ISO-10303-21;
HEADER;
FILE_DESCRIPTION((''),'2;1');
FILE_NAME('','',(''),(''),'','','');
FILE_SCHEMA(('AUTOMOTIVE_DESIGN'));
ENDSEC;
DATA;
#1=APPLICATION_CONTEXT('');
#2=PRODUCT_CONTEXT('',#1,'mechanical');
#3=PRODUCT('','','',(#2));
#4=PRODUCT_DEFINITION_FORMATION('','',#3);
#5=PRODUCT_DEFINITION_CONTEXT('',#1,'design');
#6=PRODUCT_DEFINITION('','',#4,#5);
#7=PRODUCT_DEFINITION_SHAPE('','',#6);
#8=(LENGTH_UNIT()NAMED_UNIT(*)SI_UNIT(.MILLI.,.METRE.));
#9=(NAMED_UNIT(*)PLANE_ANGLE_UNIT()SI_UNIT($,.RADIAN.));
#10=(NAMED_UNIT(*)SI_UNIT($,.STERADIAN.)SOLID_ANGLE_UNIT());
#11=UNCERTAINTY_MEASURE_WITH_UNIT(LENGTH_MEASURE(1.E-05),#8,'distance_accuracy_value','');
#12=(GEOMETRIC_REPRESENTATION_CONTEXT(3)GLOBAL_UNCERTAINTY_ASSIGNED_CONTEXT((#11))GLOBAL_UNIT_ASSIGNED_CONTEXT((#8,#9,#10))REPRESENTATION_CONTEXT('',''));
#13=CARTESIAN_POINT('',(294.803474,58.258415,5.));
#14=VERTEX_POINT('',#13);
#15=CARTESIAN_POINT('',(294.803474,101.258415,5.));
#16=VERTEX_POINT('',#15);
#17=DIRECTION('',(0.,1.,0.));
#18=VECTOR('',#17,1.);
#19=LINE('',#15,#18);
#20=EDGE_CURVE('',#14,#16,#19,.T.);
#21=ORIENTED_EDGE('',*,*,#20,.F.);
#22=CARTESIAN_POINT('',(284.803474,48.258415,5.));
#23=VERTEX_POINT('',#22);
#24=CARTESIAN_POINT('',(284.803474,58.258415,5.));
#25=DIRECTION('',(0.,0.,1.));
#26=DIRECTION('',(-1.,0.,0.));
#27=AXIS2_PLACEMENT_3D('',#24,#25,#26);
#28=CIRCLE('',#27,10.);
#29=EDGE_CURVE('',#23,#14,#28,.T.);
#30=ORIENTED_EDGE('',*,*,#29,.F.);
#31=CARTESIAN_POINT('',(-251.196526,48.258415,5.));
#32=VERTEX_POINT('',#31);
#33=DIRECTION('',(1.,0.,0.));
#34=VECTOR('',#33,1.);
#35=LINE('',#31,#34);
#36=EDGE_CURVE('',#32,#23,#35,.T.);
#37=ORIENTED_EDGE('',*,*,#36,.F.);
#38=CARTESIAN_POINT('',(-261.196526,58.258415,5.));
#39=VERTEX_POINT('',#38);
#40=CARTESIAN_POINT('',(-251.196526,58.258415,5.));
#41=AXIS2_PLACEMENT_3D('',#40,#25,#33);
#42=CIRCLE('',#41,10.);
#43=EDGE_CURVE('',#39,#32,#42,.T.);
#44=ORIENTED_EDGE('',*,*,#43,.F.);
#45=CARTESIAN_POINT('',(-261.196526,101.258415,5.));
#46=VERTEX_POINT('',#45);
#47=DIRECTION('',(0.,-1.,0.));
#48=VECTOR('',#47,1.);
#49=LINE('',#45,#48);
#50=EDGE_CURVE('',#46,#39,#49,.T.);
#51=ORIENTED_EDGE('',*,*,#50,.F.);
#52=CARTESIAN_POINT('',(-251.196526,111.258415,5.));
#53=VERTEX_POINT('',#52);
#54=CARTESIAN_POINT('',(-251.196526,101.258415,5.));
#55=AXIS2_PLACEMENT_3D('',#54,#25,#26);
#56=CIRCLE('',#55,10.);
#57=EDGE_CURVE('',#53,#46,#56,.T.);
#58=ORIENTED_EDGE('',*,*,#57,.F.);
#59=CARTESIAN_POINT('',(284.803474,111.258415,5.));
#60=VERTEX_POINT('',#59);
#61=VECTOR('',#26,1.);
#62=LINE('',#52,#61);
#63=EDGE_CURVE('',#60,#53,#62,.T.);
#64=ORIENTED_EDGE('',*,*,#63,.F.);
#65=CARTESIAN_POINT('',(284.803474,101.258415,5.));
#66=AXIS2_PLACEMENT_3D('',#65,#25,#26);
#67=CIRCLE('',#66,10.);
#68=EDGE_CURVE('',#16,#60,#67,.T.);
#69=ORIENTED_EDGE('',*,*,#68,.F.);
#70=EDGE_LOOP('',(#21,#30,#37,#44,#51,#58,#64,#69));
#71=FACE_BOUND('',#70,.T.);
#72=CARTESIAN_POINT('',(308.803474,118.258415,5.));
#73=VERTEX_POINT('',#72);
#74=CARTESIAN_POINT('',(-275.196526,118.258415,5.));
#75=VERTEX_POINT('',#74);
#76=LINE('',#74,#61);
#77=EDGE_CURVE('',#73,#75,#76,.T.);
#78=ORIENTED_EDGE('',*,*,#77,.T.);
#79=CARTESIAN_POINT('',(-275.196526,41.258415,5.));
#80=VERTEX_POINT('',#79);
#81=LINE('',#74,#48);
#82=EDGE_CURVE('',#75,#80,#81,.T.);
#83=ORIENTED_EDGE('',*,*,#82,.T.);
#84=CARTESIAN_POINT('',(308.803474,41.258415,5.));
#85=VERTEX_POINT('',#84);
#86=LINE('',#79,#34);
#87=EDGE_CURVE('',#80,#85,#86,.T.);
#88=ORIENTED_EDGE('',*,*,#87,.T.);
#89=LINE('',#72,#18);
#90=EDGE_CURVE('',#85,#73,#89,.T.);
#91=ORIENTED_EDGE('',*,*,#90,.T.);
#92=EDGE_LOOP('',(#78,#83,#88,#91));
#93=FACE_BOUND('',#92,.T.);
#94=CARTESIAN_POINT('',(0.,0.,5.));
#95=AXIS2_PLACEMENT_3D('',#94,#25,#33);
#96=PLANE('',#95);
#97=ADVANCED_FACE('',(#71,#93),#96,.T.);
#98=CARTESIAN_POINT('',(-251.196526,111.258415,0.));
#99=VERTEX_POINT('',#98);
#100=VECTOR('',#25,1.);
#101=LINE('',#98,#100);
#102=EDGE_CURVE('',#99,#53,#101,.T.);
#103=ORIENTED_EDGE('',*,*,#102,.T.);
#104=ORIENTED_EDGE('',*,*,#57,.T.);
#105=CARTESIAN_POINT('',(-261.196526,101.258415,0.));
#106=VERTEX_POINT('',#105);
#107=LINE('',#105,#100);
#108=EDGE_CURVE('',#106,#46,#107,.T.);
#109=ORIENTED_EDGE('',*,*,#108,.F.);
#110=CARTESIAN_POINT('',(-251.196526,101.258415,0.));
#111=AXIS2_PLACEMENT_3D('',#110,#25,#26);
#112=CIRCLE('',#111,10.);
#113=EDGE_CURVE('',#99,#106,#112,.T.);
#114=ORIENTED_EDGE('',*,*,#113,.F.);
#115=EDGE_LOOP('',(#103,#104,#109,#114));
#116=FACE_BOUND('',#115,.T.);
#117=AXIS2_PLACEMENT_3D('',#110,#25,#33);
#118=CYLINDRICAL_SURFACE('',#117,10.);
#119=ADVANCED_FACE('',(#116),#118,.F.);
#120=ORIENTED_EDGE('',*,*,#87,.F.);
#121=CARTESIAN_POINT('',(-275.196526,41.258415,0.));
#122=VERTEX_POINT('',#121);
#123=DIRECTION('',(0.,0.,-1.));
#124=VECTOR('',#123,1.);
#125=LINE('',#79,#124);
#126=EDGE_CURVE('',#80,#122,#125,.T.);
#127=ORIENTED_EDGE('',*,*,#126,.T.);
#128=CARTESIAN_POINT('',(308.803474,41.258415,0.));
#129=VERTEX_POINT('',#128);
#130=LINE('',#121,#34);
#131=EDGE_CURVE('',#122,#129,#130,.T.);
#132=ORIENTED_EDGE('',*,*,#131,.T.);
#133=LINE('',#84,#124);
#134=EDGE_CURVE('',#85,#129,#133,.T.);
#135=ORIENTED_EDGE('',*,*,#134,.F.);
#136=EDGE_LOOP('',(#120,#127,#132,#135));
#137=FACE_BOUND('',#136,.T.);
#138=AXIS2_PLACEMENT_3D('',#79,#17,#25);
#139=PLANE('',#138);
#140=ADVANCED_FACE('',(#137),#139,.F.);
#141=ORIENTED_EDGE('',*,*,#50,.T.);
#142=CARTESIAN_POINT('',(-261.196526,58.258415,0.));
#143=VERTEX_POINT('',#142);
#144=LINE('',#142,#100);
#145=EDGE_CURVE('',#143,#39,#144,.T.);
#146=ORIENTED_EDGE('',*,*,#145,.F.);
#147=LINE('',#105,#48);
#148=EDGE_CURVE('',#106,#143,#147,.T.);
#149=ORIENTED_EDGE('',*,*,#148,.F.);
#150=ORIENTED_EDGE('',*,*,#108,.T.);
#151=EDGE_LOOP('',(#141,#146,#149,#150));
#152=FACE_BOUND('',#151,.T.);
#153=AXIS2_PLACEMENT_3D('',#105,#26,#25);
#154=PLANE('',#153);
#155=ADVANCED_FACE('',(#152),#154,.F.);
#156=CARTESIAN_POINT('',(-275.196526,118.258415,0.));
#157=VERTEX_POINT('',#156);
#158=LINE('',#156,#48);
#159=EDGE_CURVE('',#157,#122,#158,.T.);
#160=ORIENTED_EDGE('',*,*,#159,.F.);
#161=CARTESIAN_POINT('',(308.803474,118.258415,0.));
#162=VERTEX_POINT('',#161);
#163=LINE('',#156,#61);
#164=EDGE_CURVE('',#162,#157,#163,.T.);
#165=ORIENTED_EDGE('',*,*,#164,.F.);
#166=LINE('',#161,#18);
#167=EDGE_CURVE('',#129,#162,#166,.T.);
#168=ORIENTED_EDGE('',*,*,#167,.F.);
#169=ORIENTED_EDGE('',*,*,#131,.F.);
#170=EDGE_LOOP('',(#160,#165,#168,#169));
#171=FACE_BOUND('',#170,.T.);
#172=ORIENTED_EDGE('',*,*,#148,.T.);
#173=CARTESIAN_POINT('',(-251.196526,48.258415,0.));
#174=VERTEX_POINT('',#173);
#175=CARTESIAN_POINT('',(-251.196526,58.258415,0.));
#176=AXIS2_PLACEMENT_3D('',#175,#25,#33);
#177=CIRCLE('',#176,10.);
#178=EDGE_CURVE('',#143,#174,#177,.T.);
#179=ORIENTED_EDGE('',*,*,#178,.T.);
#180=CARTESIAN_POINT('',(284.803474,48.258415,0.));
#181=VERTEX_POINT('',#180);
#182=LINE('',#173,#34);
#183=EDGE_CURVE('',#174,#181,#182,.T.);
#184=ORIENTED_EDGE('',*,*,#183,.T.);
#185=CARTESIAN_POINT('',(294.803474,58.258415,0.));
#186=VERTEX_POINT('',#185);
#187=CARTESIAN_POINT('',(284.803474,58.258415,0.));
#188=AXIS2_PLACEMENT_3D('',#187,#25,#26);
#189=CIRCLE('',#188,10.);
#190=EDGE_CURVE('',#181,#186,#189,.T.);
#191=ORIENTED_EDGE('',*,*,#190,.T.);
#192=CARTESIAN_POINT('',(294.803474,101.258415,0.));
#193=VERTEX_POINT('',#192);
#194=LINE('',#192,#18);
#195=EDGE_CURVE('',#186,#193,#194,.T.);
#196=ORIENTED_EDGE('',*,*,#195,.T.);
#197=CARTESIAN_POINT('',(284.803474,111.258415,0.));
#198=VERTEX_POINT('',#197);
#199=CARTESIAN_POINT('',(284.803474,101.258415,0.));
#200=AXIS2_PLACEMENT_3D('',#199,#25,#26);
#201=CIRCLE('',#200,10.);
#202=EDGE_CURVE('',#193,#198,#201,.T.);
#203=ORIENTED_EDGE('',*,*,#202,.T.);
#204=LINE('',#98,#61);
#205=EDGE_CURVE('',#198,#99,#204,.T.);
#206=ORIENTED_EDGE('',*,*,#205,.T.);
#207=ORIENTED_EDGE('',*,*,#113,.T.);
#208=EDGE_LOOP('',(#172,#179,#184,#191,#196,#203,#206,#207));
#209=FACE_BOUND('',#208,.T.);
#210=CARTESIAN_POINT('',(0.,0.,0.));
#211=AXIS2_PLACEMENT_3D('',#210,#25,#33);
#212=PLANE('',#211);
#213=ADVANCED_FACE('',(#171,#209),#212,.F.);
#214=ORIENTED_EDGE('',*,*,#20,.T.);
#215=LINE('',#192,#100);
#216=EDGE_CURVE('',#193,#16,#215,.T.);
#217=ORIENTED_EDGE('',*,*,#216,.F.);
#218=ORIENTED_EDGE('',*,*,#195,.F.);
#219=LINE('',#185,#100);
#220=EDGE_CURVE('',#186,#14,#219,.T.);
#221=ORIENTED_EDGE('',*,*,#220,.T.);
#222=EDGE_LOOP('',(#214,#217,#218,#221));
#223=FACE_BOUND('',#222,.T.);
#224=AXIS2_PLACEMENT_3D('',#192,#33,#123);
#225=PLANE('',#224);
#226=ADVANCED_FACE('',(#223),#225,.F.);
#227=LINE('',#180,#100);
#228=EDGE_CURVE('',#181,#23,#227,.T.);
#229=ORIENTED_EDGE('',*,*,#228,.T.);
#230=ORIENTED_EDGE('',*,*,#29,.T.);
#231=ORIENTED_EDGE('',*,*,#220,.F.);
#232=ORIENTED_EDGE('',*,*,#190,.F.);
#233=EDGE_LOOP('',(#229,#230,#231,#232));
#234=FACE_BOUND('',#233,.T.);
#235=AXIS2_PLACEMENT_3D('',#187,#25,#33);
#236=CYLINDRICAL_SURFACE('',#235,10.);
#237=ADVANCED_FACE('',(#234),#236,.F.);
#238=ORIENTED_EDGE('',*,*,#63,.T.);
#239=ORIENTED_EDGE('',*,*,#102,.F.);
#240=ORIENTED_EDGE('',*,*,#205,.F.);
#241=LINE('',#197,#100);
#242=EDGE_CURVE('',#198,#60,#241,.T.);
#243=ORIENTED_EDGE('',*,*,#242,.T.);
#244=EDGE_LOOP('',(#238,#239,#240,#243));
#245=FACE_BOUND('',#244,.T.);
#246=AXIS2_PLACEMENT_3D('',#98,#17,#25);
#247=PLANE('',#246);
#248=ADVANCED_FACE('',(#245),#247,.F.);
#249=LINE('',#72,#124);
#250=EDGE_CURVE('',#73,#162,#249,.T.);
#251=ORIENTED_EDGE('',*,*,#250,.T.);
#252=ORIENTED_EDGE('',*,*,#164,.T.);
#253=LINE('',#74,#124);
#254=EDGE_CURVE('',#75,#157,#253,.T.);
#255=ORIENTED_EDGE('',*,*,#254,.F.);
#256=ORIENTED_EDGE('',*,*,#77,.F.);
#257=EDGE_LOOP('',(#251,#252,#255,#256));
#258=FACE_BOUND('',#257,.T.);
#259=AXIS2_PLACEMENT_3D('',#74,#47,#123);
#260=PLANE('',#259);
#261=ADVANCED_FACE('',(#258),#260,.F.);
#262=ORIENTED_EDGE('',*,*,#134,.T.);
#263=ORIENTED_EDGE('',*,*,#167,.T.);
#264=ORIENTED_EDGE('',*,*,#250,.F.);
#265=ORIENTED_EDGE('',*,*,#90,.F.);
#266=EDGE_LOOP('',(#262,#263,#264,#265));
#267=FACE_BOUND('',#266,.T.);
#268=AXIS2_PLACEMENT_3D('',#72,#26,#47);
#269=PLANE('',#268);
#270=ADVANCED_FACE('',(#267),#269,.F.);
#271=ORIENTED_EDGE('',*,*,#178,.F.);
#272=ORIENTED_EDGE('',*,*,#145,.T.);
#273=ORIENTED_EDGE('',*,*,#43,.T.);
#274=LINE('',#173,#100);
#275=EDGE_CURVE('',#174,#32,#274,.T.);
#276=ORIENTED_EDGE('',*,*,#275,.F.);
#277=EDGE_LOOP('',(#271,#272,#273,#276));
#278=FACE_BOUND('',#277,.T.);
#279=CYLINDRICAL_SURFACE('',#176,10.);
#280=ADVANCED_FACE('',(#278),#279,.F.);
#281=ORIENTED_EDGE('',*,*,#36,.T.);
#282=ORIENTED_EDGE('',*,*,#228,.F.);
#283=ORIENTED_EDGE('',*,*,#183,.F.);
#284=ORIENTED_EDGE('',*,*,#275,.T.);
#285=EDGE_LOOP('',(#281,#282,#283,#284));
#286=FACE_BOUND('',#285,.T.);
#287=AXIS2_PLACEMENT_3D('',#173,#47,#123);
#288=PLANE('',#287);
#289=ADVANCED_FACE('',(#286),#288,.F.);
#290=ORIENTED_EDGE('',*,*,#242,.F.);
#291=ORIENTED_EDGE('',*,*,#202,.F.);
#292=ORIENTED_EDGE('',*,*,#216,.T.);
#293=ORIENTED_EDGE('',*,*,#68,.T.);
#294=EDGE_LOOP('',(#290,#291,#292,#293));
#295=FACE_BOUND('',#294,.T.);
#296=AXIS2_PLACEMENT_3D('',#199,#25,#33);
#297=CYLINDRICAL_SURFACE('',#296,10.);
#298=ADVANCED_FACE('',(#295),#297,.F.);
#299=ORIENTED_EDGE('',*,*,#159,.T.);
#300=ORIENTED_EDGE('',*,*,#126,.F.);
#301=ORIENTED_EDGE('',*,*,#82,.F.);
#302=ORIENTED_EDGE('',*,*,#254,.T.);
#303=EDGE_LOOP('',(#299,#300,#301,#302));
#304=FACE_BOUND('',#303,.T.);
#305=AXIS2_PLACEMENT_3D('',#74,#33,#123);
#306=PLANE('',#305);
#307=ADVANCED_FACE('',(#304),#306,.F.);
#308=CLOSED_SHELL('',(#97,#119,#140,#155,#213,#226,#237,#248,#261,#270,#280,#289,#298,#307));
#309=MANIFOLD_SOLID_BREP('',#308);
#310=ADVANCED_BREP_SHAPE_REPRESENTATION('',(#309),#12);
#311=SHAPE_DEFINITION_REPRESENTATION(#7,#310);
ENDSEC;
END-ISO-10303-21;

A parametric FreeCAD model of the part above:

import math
import FreeCAD as App
import Part
import Sketcher
Q = App.Units.Quantity

doc = App.newDocument("Part")
params = doc.addObject("Spreadsheet::Sheet", "Params")
for row, (alias, value) in enumerate([
    ("sketch1_width", "584 mm"),
    ("sketch1_height", "77 mm"),
    ("pad1_length", "5 mm"),
    ("sketch2_radius", "10 mm"),
    ("sketch2_width", "536 mm"),
    ("sketch2_height", "43 mm"),
    ("pocket1_length", "5 mm"),
], start=1):
    params.set(f"A{row}", alias)
    params.set(f"B{row}", "=" + value)
    params.setAlias(f"B{row}", alias)

body = doc.addObject("PartDesign::Body", "Body")

sketch1 = body.newObject("Sketcher::SketchObject", "Sketch")
sketch1.AttachmentSupport = (doc.getObject("XY_Plane"), [""])
sketch1.MapMode = "FlatFace"
sketch1.addGeometry(Part.LineSegment(App.Vector(-275.196526, 118.258415, 0), App.Vector(-275.196526, 41.258415, 0)), False)
sketch1.addGeometry(Part.LineSegment(App.Vector(-275.196526, 41.258415, 0), App.Vector(308.803474, 41.258415, 0)), False)
sketch1.addGeometry(Part.LineSegment(App.Vector(308.803474, 41.258415, 0), App.Vector(308.803474, 118.258415, 0)), False)
sketch1.addGeometry(Part.LineSegment(App.Vector(308.803474, 118.258415, 0), App.Vector(-275.196526, 118.258415, 0)), False)
sketch1.addConstraint(Sketcher.Constraint("Coincident", 0, 2, 1, 1))
sketch1.addConstraint(Sketcher.Constraint("Coincident", 1, 2, 2, 1))
sketch1.addConstraint(Sketcher.Constraint("Coincident", 2, 2, 3, 1))
sketch1.addConstraint(Sketcher.Constraint("Coincident", 3, 2, 0, 1))
sketch1.addConstraint(Sketcher.Constraint("Vertical", 0))
sketch1.addConstraint(Sketcher.Constraint("Horizontal", 1))
sketch1.addConstraint(Sketcher.Constraint("Vertical", 2))
sketch1.addConstraint(Sketcher.Constraint("Horizontal", 3))
sketch1.addConstraint(Sketcher.Constraint("DistanceX", 1, 1, 1, 2, Q("584 mm")))
sketch1.addConstraint(Sketcher.Constraint("DistanceY", 0, 2, 0, 1, Q("77 mm")))
sketch1.addConstraint(Sketcher.Constraint("DistanceX", 0, 2, -1, 1, Q("275.196526 mm")))
sketch1.addConstraint(Sketcher.Constraint("DistanceY", -1, 1, 0, 2, Q("41.258415 mm")))
sketch1.setExpression("Constraints[8]", "Params.sketch1_width")
sketch1.setExpression("Constraints[9]", "Params.sketch1_height")
pad1 = body.newObject("PartDesign::Pad", "Pad")
pad1.Profile = sketch1
pad1.setExpression("Length", "Params.pad1_length")

sketch2 = body.newObject("Sketcher::SketchObject", "Sketch001")
sketch2.AttachmentSupport = (doc.getObject("XY_Plane"), [""])
sketch2.MapMode = "FlatFace"
sketch2.AttachmentOffset = App.Placement(App.Vector(0, 0, 5), App.Rotation())
sketch2.addGeometry(Part.LineSegment(App.Vector(284.803474, 111.258415, 0), App.Vector(-251.196526, 111.258415, 0)), False)
sketch2.addGeometry(Part.ArcOfCircle(Part.Circle(App.Vector(-251.196526, 101.258415, 0), App.Vector(0, 0, 1), 10), math.radians(90), math.radians(180)), False)
sketch2.addGeometry(Part.LineSegment(App.Vector(-261.196526, 101.258415, 0), App.Vector(-261.196526, 58.258415, 0)), False)
sketch2.addGeometry(Part.ArcOfCircle(Part.Circle(App.Vector(-251.196526, 58.258415, 0), App.Vector(0, 0, 1), 10), math.radians(180), math.radians(270)), False)
sketch2.addGeometry(Part.LineSegment(App.Vector(-251.196526, 48.258415, 0), App.Vector(284.803474, 48.258415, 0)), False)
sketch2.addGeometry(Part.ArcOfCircle(Part.Circle(App.Vector(284.803474, 58.258415, 0), App.Vector(0, 0, 1), 10), math.radians(-90), math.radians(0)), False)
sketch2.addGeometry(Part.LineSegment(App.Vector(294.803474, 58.258415, 0), App.Vector(294.803474, 101.258415, 0)), False)
sketch2.addGeometry(Part.ArcOfCircle(Part.Circle(App.Vector(284.803474, 101.258415, 0), App.Vector(0, 0, 1), 10), math.radians(0), math.radians(90)), False)
sketch2.addConstraint(Sketcher.Constraint("Tangent", 0, 2, 1, 1))
sketch2.addConstraint(Sketcher.Constraint("Tangent", 1, 2, 2, 1))
sketch2.addConstraint(Sketcher.Constraint("Tangent", 2, 2, 3, 1))
sketch2.addConstraint(Sketcher.Constraint("Tangent", 3, 2, 4, 1))
sketch2.addConstraint(Sketcher.Constraint("Tangent", 4, 2, 5, 1))
sketch2.addConstraint(Sketcher.Constraint("Tangent", 5, 2, 6, 1))
sketch2.addConstraint(Sketcher.Constraint("Tangent", 6, 2, 7, 1))
sketch2.addConstraint(Sketcher.Constraint("Tangent", 7, 2, 0, 1))
sketch2.addConstraint(Sketcher.Constraint("Horizontal", 0))
sketch2.addConstraint(Sketcher.Constraint("Vertical", 2))
sketch2.addConstraint(Sketcher.Constraint("Horizontal", 4))
sketch2.addConstraint(Sketcher.Constraint("Vertical", 6))
sketch2.addConstraint(Sketcher.Constraint("Equal", 1, 3))
sketch2.addConstraint(Sketcher.Constraint("Equal", 3, 5))
sketch2.addConstraint(Sketcher.Constraint("Equal", 5, 7))
sketch2.addConstraint(Sketcher.Constraint("Radius", 1, Q("10 mm")))
sketch2.addConstraint(Sketcher.Constraint("DistanceX", 0, 2, 0, 1, Q("536 mm")))
sketch2.addConstraint(Sketcher.Constraint("DistanceY", 2, 2, 2, 1, Q("43 mm")))
sketch2.addConstraint(Sketcher.Constraint("DistanceX", 1, 3, -1, 1, Q("251.196526 mm")))
sketch2.addConstraint(Sketcher.Constraint("DistanceY", -1, 1, 1, 3, Q("101.258415 mm")))
sketch2.setExpression("Constraints[15]", "Params.sketch2_radius")
sketch2.setExpression("Constraints[16]", "Params.sketch2_width")
sketch2.setExpression("Constraints[17]", "Params.sketch2_height")
pocket1 = body.newObject("PartDesign::Pocket", "Pocket")
pocket1.Profile = sketch2
pocket1.setExpression("Length", "Params.pocket1_length")

doc.recompute()
